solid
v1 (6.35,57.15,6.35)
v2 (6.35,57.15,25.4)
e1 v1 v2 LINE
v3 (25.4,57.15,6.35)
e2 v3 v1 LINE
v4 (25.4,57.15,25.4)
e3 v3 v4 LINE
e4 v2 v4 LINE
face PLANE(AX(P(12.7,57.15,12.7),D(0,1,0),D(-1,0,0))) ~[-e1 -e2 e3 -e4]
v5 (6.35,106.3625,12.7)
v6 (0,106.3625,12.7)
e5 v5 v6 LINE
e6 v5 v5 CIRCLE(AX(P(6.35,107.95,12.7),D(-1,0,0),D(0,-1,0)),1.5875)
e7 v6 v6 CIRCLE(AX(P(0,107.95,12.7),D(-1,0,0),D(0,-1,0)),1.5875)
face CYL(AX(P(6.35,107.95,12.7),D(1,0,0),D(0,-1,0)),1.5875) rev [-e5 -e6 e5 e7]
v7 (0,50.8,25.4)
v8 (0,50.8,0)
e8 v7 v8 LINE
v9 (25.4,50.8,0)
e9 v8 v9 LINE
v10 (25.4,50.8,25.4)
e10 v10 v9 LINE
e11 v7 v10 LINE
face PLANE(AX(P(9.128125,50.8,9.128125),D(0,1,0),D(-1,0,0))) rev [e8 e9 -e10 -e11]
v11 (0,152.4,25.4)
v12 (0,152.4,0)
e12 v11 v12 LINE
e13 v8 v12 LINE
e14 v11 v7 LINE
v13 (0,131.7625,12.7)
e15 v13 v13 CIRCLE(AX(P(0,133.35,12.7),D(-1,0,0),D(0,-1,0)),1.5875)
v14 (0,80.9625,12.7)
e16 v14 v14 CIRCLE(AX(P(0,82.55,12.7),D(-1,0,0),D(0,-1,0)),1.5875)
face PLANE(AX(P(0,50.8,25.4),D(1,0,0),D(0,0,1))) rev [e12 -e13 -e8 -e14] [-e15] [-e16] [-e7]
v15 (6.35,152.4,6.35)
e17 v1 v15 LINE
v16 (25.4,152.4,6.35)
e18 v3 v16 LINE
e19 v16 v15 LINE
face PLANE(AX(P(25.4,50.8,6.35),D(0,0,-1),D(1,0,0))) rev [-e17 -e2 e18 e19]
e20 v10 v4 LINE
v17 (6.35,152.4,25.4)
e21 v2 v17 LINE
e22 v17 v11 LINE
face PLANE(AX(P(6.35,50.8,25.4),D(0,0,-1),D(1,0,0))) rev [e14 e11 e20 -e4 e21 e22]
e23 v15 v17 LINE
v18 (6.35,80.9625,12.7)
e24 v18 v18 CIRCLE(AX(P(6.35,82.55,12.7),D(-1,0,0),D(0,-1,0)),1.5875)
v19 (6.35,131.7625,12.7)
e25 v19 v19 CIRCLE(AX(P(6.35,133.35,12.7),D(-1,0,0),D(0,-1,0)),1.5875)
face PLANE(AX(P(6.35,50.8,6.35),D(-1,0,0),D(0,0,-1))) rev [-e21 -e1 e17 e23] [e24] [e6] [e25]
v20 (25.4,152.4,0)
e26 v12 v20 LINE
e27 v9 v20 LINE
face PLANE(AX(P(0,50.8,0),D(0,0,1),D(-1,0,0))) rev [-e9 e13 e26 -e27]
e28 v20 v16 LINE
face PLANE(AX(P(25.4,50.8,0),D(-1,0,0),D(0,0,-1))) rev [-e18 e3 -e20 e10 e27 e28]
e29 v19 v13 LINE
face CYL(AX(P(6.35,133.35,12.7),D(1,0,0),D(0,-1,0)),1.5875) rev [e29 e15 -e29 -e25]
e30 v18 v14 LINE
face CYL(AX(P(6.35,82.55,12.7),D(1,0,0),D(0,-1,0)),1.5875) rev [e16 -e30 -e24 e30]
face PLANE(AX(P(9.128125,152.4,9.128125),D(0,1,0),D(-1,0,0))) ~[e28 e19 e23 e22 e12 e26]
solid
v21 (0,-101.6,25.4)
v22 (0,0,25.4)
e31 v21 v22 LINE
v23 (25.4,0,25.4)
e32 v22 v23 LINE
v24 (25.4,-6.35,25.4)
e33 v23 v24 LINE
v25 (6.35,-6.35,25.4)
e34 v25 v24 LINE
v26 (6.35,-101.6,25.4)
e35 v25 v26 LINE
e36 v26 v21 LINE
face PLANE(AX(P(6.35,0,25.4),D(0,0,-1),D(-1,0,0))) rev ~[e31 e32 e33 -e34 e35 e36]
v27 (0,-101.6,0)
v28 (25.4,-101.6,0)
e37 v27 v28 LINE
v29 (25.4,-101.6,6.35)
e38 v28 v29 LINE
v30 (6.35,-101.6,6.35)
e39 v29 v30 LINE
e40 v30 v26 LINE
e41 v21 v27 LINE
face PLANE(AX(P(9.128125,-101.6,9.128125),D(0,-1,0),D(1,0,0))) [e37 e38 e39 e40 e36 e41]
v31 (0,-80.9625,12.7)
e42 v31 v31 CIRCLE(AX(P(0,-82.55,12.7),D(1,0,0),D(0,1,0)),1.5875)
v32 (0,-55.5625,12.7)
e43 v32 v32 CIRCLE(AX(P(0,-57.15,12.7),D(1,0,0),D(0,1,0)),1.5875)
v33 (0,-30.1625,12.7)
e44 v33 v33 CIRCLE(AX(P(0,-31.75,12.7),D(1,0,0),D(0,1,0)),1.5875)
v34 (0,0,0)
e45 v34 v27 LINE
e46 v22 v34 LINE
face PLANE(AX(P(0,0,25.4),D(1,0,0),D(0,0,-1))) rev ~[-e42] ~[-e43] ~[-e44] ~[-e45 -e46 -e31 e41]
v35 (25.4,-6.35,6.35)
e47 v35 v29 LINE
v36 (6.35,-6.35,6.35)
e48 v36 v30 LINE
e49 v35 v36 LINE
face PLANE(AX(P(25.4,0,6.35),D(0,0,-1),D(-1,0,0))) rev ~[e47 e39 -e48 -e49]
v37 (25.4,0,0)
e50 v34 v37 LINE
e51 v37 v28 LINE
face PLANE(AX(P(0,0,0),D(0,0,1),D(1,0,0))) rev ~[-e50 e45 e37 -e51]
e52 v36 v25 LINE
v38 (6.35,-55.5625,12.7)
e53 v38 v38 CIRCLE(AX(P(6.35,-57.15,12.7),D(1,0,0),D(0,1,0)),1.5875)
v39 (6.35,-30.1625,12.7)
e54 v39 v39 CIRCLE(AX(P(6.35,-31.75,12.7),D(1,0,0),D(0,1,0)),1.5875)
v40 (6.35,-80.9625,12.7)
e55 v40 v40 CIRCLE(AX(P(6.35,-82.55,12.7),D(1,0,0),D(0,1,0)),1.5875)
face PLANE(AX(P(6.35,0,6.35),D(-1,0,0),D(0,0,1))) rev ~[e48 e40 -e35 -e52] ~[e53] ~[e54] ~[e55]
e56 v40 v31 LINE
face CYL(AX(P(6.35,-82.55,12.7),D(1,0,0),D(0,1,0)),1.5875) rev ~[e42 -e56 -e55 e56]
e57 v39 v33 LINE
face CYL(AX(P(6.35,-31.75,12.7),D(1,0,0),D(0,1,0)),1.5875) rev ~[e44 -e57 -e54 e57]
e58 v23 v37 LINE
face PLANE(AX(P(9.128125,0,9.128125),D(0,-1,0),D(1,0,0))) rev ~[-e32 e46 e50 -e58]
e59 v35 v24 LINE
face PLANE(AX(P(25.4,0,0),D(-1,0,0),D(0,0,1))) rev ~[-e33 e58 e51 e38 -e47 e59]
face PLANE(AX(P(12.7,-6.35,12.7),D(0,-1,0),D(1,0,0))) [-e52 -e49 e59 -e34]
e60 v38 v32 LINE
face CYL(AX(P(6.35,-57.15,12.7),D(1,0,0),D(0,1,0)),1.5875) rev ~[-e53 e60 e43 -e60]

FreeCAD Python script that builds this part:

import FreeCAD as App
import Part
import Sketcher
Q = App.Units.Quantity


def add_polygon(sketch, points):
    """Adds a closed chain of lines whose ends are joined by coincident constraints."""
    first, n = sketch.GeometryCount, len(points)
    for a, b in zip(points, points[1:] + points[:1]):
        sketch.addGeometry(Part.LineSegment(App.Vector(*a, 0), App.Vector(*b, 0)), False)
    for i in range(n):
        sketch.addConstraint(Sketcher.Constraint("Coincident", first + i, 2, first + (i + 1) % n, 1))

doc = App.newDocument("Part")
body = doc.addObject("PartDesign::Body", "Body")

sketch1 = body.newObject("Sketcher::SketchObject", "Sketch")
sketch1.AttachmentSupport = (doc.getObject("XZ_Plane"), [""])
sketch1.MapMode = "FlatFace"
add_polygon(sketch1, [(0, 25.4), (0, 0), (25.4, 0), (25.4, 6.35), (6.35, 6.35), (6.35, 25.4)])
sketch1.addConstraint([
    Sketcher.Constraint("Vertical", 0),
    Sketcher.Constraint("Horizontal", 1),
    Sketcher.Constraint("Vertical", 2),
    Sketcher.Constraint("Horizontal", 3),
    Sketcher.Constraint("Vertical", 4),
    Sketcher.Constraint("Horizontal", 5),
    Sketcher.Constraint("Coincident", 0, 2, -1, 1),
    Sketcher.Constraint("Equal", 1, 0),
    Sketcher.Constraint("Equal", 5, 2),
    Sketcher.Constraint("DistanceX", 1, 1, 1, 2, Q("1 in")),
    Sketcher.Constraint("DistanceX", 3, 2, 3, 1, Q("0.75 in")),
])
pad1 = body.newObject("PartDesign::Pad", "Pad")
pad1.Profile = sketch1
pad1.Length = Q("4 in")

sketch2 = body.newObject("Sketcher::SketchObject", "Sketch001")
sketch2.AttachmentSupport = (doc.getObject("XZ_Plane"), [""])
sketch2.MapMode = "FlatFace"
add_polygon(sketch2, [(0, 25.4), (0, 0), (25.4, 0), (25.4, 25.4)])
sketch2.addConstraint([
    Sketcher.Constraint("Vertical", 0),
    Sketcher.Constraint("Horizontal", 1),
    Sketcher.Constraint("Vertical", 2),
    Sketcher.Constraint("Horizontal", 3),
    Sketcher.Constraint("Coincident", 0, 2, -1, 1),
    Sketcher.Constraint("Equal", 3, 0),
    Sketcher.Constraint("DistanceX", 1, 1, 1, 2, Q("1 in")),
])
pad2 = body.newObject("PartDesign::Pad", "Pad001")
pad2.Profile = sketch2
pad2.Length = Q("0.25 in")

sketch3 = body.newObject("Sketcher::SketchObject", "Sketch002")
sketch3.AttachmentSupport = (doc.getObject("YZ_Plane"), [""])
sketch3.MapMode = "FlatFace"
sketch3.AttachmentOffset = App.Placement(App.Vector(0, 0, 0.25 * 25.4), App.Rotation())
sketch3.addGeometry([
    Part.Circle(App.Vector(-31.75, 12.7, 0), App.Vector(0, 0, 1), 1.5875),
    Part.Circle(App.Vector(-57.15, 12.7, 0), App.Vector(0, 0, 1), 1.5875),
    Part.Circle(App.Vector(-82.55, 12.7, 0), App.Vector(0, 0, 1), 1.5875),
], False)
sketch3.addConstraint([
    Sketcher.Constraint("Equal", 0, 1),
    Sketcher.Constraint("Equal", 1, 2),
    Sketcher.Constraint("Horizontal", 0, 3, 1, 3),
    Sketcher.Constraint("Horizontal", 1, 3, 2, 3),
    Sketcher.Constraint("Diameter", 0, Q("0.125 in")),
    Sketcher.Constraint("DistanceX", 1, 3, 0, 3, Q("1 in")),
    Sketcher.Constraint("DistanceX", 2, 3, 1, 3, Q("1 in")),
    Sketcher.Constraint("DistanceY", -1, 1, 0, 3, Q("0.5 in")),
    Sketcher.Constraint("DistanceX", 0, 3, -1, 1, Q("1.25 in")),
])
pocket1 = body.newObject("PartDesign::Pocket", "Pocket")
pocket1.Profile = sketch3
pocket1.Length = Q("1 in")
body2 = doc.addObject("PartDesign::Body", "Body001")
doc.recompute()

mirroring = doc.addObject("Part::Mirroring", "Mirroring")
mirroring.Source = body
mirroring.Base = App.Vector(0, 25.4, 0)
mirroring.Normal = App.Vector(0, -1, 0)
body2.BaseFeature = mirroring
doc.recompute()
mirroring.Visibility = False

doc.recompute()
